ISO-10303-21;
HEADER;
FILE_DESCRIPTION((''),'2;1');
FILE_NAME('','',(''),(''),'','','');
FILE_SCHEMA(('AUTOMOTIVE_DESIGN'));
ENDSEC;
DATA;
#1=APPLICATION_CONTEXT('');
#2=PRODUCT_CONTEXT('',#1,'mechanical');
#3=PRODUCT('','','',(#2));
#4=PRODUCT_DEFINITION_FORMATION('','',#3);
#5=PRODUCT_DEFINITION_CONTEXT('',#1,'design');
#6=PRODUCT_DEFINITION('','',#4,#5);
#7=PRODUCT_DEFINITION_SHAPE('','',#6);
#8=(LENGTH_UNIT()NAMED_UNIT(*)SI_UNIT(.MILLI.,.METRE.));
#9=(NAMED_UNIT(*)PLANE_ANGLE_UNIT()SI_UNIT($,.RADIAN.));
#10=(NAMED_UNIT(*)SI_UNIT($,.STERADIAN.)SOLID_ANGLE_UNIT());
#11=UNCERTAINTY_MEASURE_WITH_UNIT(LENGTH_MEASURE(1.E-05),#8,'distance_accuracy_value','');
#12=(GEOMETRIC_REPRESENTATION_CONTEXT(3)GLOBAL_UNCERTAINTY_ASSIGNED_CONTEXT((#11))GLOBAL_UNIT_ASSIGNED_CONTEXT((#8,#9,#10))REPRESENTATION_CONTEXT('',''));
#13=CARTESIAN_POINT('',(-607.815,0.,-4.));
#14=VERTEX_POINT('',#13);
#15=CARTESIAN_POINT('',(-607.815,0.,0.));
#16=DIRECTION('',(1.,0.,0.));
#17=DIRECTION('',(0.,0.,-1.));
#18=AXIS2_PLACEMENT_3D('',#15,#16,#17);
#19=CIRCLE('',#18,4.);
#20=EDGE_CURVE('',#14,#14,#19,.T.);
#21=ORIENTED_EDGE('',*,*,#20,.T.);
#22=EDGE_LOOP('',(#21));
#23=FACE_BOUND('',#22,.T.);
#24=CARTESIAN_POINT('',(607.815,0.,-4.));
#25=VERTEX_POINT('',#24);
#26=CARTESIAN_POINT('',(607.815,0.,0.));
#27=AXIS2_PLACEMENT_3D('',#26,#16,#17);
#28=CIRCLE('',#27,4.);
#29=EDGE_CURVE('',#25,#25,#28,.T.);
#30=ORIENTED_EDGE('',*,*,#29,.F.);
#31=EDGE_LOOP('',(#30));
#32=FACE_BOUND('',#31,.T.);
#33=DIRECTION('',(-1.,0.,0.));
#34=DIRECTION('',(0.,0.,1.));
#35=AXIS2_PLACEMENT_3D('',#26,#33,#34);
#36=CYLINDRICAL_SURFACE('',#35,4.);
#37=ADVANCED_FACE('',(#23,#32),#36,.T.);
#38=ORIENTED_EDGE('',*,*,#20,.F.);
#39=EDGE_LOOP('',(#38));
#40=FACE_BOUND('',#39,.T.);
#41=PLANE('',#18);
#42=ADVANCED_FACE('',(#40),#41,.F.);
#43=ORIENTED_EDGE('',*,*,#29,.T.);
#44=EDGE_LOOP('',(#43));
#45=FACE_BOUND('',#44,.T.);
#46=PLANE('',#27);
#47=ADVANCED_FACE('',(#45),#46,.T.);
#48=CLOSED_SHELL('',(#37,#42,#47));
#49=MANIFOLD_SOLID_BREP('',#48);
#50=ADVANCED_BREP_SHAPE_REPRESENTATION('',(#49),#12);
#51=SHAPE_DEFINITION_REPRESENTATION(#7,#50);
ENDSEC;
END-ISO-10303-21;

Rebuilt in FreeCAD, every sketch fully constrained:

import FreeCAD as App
import Part
import Sketcher

doc = App.newDocument("Part")
body = doc.addObject("PartDesign::Body", "Body")

sketch1 = body.newObject("Sketcher::SketchObject", "Sketch")
sketch1.AttachmentSupport = (doc.getObject("YZ_Plane"), [""])
sketch1.MapMode = "FlatFace"
sketch1.addGeometry(Part.Circle(App.Vector(0, 0, 0), App.Vector(0, 0, 1), 4), False)
sketch1.addConstraint([
    Sketcher.Constraint("Coincident", 0, 3, -1, 1),
    Sketcher.Constraint("Diameter", 0, 8.0),
])
pad1 = body.newObject("PartDesign::Pad", "Pad")
pad1.Profile = sketch1
pad1.Length = 1215.63
pad1.Midplane = True

doc.recompute()
